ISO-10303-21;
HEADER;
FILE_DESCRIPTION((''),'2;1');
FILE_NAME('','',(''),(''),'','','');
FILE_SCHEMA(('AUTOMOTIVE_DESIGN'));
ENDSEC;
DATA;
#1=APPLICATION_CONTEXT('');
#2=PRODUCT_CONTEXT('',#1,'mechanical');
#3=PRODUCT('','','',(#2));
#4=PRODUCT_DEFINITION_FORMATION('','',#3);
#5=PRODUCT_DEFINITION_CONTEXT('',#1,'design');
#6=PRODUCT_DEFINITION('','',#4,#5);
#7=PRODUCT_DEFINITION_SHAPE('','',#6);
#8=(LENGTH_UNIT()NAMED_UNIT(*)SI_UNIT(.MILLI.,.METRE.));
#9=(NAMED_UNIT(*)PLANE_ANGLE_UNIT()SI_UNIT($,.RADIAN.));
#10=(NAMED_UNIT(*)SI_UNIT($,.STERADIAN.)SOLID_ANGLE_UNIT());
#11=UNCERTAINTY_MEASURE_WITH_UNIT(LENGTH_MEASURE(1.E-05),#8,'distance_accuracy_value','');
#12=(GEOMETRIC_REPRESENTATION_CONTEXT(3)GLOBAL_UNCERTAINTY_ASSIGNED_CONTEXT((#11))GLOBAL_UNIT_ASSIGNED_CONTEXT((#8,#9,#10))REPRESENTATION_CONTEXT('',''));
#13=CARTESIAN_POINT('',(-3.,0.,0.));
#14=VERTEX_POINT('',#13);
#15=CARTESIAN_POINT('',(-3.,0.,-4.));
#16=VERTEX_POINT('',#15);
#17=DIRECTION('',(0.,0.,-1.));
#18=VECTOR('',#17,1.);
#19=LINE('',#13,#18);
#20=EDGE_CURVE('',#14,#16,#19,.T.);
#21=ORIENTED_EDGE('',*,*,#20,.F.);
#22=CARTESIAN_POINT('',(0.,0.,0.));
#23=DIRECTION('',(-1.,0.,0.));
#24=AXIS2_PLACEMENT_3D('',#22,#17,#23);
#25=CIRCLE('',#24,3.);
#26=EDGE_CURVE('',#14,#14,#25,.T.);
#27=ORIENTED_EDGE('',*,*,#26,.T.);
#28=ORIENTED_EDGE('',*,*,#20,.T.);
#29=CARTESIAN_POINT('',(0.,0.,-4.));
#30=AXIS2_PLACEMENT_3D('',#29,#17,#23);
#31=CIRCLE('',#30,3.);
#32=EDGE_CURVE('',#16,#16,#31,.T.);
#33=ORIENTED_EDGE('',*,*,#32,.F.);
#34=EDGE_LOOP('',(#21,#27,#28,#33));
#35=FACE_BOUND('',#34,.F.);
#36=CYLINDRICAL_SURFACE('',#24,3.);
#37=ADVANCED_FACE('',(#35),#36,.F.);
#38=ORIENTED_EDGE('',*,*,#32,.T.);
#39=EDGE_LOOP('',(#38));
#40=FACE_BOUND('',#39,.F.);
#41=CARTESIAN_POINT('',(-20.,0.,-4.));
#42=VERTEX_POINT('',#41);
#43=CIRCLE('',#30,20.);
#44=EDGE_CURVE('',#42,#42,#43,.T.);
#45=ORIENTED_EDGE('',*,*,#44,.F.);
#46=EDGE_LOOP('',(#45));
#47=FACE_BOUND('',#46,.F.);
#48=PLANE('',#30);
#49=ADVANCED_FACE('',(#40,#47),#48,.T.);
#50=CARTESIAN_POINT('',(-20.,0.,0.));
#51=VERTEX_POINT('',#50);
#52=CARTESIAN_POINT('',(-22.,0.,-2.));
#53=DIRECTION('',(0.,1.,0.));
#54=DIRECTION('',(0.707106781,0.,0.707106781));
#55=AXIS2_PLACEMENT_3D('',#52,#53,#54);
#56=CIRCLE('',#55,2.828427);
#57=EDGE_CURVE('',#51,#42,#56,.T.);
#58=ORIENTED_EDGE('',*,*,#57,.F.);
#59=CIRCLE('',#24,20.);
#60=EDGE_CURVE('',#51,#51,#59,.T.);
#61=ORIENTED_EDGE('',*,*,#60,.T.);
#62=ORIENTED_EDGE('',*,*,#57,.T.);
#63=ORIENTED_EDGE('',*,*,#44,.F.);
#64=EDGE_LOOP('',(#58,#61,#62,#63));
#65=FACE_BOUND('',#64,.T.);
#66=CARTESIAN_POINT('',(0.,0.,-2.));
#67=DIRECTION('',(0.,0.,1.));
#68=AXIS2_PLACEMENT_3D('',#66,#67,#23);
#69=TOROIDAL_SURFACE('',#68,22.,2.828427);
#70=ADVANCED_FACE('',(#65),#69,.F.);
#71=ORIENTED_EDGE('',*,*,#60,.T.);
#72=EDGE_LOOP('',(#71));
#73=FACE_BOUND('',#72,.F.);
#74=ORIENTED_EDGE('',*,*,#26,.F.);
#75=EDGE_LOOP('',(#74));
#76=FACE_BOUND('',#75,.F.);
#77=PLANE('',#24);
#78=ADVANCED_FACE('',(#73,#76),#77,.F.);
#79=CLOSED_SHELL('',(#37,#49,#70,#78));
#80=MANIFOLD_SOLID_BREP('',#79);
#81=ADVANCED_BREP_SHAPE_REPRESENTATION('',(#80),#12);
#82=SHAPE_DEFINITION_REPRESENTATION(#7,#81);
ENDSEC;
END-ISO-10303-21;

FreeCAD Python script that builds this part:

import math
import FreeCAD as App
import Part
import Sketcher

doc = App.newDocument("Part")
body = doc.addObject("PartDesign::Body", "Body")

# Sketch on XZ plane
sketch1 = body.newObject("Sketcher::SketchObject", "Sketch")
sketch1.AttachmentSupport = (doc.getObject("XZ_Plane"), [""])
sketch1.MapMode = "FlatFace"
sketch1.addGeometry([
    Part.ArcOfCircle(Part.Circle(App.Vector(-22, -2, 0), App.Vector(0, 0, 1), 2.8), math.radians(-45), math.radians(45)),
    Part.LineSegment(App.Vector(-20, 0, 0), App.Vector(-3, 0, 0)),
    Part.LineSegment(App.Vector(-3, 0, 0), App.Vector(-3, -4, 0)),
    Part.LineSegment(App.Vector(-3, -4, 0), App.Vector(-20, -4, 0)),
], False)
sketch1.addConstraint([
    Sketcher.Constraint("Coincident", 0, 2, 1, 1),
    Sketcher.Constraint("Coincident", 1, 2, 2, 1),
    Sketcher.Constraint("Coincident", 2, 2, 3, 1),
    Sketcher.Constraint("Coincident", 3, 2, 0, 1),
    Sketcher.Constraint("Horizontal", 1),
    Sketcher.Constraint("Vertical", 2),
    Sketcher.Constraint("Horizontal", 3),
    Sketcher.Constraint("PointOnObject", 0, 2, -1),
    Sketcher.Constraint("Vertical", 0, 2, 3, 2),
    Sketcher.Constraint("DistanceY", 2, 2, 2, 1, 4.0),
    Sketcher.Constraint("DistanceX", 0, 2, -1, 1, 20.0),
    Sketcher.Constraint("DistanceX", 1, 2, -1, 1, 3.0),
    Sketcher.Constraint("DistanceX", 0, 3, -1, 1, 22.0),
])
revolution = body.newObject("PartDesign::Revolution", "Revolution")
revolution.Profile = sketch1
revolution.ReferenceAxis = (sketch1, ["V_Axis"])
revolution.Angle = 360

doc.recompute()
